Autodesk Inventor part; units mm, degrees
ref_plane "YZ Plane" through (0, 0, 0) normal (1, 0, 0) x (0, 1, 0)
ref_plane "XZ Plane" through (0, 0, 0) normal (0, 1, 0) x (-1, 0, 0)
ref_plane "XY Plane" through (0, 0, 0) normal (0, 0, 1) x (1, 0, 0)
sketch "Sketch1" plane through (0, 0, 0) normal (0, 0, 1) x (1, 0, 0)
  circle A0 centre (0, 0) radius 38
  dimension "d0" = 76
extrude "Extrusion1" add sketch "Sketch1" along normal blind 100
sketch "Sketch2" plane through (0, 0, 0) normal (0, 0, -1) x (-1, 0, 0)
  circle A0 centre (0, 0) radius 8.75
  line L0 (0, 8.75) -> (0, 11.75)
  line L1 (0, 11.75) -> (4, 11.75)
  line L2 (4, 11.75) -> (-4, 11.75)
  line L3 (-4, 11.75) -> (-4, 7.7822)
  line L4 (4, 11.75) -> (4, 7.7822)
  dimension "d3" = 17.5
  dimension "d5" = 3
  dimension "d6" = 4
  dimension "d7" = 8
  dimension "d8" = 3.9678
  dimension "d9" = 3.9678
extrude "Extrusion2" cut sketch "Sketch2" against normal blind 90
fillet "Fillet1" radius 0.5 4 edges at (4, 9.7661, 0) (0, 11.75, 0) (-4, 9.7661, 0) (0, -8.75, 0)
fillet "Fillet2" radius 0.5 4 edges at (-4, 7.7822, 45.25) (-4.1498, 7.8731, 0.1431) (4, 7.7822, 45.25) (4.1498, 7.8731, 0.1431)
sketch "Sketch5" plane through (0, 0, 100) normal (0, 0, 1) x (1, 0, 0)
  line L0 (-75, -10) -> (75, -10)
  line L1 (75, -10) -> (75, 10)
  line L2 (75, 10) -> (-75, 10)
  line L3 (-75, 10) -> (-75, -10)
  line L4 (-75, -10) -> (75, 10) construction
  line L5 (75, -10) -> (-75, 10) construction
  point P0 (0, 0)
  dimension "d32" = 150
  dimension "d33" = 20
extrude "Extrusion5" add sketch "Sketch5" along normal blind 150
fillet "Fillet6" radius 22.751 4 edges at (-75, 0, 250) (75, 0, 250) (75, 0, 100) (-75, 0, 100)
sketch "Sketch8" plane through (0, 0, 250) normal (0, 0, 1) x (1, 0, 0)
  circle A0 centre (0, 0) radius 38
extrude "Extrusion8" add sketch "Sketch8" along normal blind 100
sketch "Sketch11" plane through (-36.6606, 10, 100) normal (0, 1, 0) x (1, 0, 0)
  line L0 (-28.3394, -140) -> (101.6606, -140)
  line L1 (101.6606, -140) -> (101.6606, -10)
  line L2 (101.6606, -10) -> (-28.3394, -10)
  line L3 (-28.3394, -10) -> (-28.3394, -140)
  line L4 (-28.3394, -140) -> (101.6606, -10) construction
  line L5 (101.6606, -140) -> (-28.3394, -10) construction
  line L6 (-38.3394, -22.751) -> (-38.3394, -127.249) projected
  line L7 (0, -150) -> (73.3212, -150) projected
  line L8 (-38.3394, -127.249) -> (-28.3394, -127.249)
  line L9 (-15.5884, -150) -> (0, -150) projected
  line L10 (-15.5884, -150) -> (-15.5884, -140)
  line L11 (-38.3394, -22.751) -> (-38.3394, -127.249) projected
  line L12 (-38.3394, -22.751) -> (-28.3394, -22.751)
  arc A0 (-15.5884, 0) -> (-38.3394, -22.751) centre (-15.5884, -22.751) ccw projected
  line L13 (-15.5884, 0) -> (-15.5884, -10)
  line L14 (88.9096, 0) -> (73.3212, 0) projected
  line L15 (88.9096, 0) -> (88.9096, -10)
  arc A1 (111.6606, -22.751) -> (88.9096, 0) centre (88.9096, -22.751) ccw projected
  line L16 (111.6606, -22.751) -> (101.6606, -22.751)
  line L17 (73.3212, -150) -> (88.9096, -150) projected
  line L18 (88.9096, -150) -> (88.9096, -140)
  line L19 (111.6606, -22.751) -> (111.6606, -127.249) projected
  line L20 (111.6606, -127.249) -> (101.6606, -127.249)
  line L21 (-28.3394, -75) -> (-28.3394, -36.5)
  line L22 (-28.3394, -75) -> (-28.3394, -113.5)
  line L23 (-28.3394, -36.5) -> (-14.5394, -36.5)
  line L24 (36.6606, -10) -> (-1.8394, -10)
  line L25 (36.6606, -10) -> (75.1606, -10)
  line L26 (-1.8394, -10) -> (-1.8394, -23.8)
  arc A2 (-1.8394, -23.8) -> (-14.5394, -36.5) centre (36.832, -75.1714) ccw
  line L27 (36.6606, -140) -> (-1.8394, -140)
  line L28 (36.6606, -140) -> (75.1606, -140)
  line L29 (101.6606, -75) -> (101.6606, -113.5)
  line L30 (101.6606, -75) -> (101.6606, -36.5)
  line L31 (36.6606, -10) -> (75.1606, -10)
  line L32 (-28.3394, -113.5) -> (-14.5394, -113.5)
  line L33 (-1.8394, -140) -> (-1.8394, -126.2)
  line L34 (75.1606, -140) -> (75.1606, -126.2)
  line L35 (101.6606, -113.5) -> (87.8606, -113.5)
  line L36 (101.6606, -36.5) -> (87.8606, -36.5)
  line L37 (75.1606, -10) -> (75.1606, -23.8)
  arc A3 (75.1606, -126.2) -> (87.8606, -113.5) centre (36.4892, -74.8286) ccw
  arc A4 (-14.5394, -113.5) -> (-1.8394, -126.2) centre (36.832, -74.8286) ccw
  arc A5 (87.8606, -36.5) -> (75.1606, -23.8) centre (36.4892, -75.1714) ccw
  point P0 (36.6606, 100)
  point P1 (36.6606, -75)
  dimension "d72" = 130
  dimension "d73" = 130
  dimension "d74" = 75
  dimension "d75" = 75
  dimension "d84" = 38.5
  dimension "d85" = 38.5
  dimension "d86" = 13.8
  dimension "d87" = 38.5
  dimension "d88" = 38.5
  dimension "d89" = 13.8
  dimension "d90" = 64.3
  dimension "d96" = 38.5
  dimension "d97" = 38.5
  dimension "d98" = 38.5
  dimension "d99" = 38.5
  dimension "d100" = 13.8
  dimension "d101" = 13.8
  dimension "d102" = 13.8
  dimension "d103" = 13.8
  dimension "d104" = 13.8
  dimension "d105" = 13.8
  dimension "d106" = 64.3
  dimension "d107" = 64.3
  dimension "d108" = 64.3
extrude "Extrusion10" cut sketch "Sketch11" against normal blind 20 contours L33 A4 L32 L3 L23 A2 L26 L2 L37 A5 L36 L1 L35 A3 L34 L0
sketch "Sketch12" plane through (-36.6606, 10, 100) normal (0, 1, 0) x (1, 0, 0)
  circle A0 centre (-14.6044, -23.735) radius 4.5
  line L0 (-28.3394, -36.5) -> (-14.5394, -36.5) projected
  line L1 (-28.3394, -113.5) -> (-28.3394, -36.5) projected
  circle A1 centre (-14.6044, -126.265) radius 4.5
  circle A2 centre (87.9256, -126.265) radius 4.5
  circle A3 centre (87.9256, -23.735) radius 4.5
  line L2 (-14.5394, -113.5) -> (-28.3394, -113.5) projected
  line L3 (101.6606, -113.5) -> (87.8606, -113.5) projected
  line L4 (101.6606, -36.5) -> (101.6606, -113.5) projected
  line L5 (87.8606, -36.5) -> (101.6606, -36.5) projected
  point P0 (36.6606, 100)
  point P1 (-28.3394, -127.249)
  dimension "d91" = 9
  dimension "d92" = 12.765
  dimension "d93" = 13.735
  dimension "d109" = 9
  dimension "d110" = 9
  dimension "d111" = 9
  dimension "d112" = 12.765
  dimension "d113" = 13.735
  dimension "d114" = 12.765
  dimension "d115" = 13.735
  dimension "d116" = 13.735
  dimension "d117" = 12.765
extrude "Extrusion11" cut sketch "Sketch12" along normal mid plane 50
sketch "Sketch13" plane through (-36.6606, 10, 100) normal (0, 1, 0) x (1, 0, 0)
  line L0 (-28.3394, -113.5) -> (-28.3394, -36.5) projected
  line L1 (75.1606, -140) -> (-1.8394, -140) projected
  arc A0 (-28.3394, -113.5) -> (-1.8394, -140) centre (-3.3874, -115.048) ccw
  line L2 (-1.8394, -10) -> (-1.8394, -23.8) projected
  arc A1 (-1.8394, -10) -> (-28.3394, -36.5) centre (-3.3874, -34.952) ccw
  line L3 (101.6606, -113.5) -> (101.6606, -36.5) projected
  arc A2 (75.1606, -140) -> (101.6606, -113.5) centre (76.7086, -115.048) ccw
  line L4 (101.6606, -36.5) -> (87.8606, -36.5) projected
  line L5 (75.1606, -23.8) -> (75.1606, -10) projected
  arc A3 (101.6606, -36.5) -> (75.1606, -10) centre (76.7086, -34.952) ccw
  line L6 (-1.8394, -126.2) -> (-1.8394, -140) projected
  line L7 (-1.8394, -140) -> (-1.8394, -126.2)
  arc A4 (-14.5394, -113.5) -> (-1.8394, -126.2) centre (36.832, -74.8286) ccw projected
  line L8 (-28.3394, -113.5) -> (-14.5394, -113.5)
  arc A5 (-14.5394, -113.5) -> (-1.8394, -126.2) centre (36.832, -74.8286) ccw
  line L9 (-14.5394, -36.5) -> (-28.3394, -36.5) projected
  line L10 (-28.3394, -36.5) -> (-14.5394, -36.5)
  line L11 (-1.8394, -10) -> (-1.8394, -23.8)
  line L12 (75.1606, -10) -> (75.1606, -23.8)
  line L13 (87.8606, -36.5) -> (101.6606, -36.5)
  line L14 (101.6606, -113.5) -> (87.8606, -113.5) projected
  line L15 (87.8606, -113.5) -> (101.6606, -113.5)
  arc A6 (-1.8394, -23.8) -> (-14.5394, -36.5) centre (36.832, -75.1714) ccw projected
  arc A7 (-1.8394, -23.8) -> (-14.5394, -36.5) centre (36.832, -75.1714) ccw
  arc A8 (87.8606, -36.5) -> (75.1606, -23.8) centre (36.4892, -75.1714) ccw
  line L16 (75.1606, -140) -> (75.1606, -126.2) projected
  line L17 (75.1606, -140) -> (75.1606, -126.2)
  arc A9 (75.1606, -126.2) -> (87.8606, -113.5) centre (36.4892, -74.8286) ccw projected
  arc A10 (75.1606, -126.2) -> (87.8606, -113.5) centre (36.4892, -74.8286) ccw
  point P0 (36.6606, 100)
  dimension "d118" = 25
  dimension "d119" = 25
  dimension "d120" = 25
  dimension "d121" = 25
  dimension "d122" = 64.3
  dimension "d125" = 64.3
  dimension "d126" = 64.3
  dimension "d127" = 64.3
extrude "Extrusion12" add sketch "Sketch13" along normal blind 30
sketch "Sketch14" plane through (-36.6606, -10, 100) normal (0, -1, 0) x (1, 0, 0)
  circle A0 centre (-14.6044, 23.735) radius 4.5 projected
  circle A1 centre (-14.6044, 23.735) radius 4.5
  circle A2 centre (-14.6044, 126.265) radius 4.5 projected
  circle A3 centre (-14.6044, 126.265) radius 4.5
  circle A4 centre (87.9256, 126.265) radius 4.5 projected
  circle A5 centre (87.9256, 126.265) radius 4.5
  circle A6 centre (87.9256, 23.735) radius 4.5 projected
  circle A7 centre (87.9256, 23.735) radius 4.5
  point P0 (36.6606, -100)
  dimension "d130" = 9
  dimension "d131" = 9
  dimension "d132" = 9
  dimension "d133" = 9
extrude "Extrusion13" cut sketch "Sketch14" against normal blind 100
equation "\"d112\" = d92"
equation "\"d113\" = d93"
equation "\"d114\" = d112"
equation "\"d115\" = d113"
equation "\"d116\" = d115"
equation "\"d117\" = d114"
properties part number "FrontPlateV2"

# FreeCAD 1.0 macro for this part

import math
import FreeCAD as App
import Part
import Sketcher

V = App.Vector


def edges_at(feature, points):
    """Names of the edges that pass closest to the given points."""
    edges = feature.Shape.Edges
    near = lambda p: min(range(len(edges)), key=lambda i: edges[i].distToShape(Part.Vertex(*p))[0])
    return sorted({f"Edge{near(p) + 1}" for p in points})

doc = App.newDocument("Part")
body = doc.addObject("PartDesign::Body", "Body")

# Sketch on XY plane
sketch1 = body.newObject("Sketcher::SketchObject", "Sketch")
sketch1.AttachmentSupport = (doc.getObject("XY_Plane"), [""])
sketch1.MapMode = "FlatFace"
sketch1.addGeometry(Part.Circle(V(0, 0, 0), V(0, 0, 1), 38), False)
sketch1.addConstraint([
    Sketcher.Constraint("Coincident", 0, 3, -1, 1),
    Sketcher.Constraint("Diameter", 0, 76.0),
])
pad1 = body.newObject("PartDesign::Pad", "Pad")
pad1.Profile = sketch1
pad1.Length = 100

# Sketch on XY plane
sketch2 = body.newObject("Sketcher::SketchObject", "Sketch001")
sketch2.AttachmentSupport = (doc.getObject("XY_Plane"), [""])
sketch2.MapMode = "FlatFace"
sketch2.addGeometry([
    Part.ArcOfCircle(Part.Circle(V(0, 0, 0), V(0, 0, 1), 8.8), math.radians(117), math.radians(423)),
    Part.LineSegment(V(-4, 7.8, 0), V(-4, 11.8, 0)),
    Part.LineSegment(V(-4, 11.8, 0), V(4, 11.8, 0)),
    Part.LineSegment(V(4, 11.8, 0), V(4, 7.8, 0)),
], False)
sketch2.addConstraint([
    Sketcher.Constraint("Coincident", 0, 1, 1, 1),
    Sketcher.Constraint("Coincident", 1, 2, 2, 1),
    Sketcher.Constraint("Coincident", 2, 2, 3, 1),
    Sketcher.Constraint("Coincident", 3, 2, 0, 2),
    Sketcher.Constraint("Vertical", 1),
    Sketcher.Constraint("Horizontal", 2),
    Sketcher.Constraint("Vertical", 3),
    Sketcher.Constraint("Coincident", 0, 3, -1, 1),
    Sketcher.Constraint("Horizontal", 0, 1, 3, 2),
    Sketcher.Constraint("DistanceX", 2, 1, 2, 2, 8.0),
    Sketcher.Constraint("Radius", 0, 8.75),
    Sketcher.Constraint("DistanceY", 1, 1, 1, 2, 3.9678),
])
pocket1 = body.newObject("PartDesign::Pocket", "Pocket")
pocket1.Profile = sketch2
pocket1.Length = 90
pocket1.Reversed = True
doc.recompute()

fillet = body.newObject("PartDesign::Fillet", "Fillet")
fillet.Base = (pocket1, edges_at(pocket1, [
    (4, 9.766, 0),
    (0, 11.75, 0),
    (-4, 9.766, 0),
    (0, -8.75, 0),
]))
fillet.Radius = 0.5
doc.recompute()

fillet2 = body.newObject("PartDesign::Fillet", "Fillet001")
fillet2.Base = (fillet, edges_at(fillet, [
    (-4, 7.782, 45.25),
    (-4.15, 7.873, 0.143),
    (4, 7.782, 45.25),
    (4.15, 7.873, 0.143),
]))
fillet2.Radius = 0.5

# Sketch on XY plane
sketch3 = body.newObject("Sketcher::SketchObject", "Sketch002")
sketch3.AttachmentSupport = (doc.getObject("XY_Plane"), [""])
sketch3.MapMode = "FlatFace"
sketch3.AttachmentOffset = App.Placement(V(0, 0, 100), App.Rotation())
sketch3.addGeometry([
    Part.LineSegment(V(-75, 10, 0), V(-75, -10, 0)),
    Part.LineSegment(V(-75, -10, 0), V(75, -10, 0)),
    Part.LineSegment(V(75, -10, 0), V(75, 10, 0)),
    Part.LineSegment(V(75, 10, 0), V(-75, 10, 0)),
], False)
sketch3.addConstraint([
    Sketcher.Constraint("Coincident", 0, 2, 1, 1),
    Sketcher.Constraint("Coincident", 1, 2, 2, 1),
    Sketcher.Constraint("Coincident", 2, 2, 3, 1),
    Sketcher.Constraint("Coincident", 3, 2, 0, 1),
    Sketcher.Constraint("Vertical", 0),
    Sketcher.Constraint("Horizontal", 1),
    Sketcher.Constraint("Vertical", 2),
    Sketcher.Constraint("Horizontal", 3),
    Sketcher.Constraint("Symmetric", 0, 2, 2, 2, -1, 1),
    Sketcher.Constraint("DistanceX", 1, 1, 1, 2, 150.0),
    Sketcher.Constraint("DistanceY", 0, 2, 0, 1, 20.0),
])
pad2 = body.newObject("PartDesign::Pad", "Pad001")
pad2.Profile = sketch3
pad2.Length = 150
doc.recompute()

fillet3 = body.newObject("PartDesign::Fillet", "Fillet002")
fillet3.Base = (pad2, edges_at(pad2, [
    (-75, 0, 250),
    (75, 0, 250),
    (75, 0, 100),
    (-75, 0, 100),
]))
fillet3.Radius = 22.751

# Sketch on XY plane
sketch4 = body.newObject("Sketcher::SketchObject", "Sketch003")
sketch4.AttachmentSupport = (doc.getObject("XY_Plane"), [""])
sketch4.MapMode = "FlatFace"
sketch4.AttachmentOffset = App.Placement(V(0, 0, 250), App.Rotation())
sketch4.addGeometry(Part.Circle(V(0, 0, 0), V(0, 0, 1), 38), False)
sketch4.addConstraint([
    Sketcher.Constraint("Coincident", 0, 3, -1, 1),
    Sketcher.Constraint("Diameter", 0, 76.0),
])
pad3 = body.newObject("PartDesign::Pad", "Pad002")
pad3.Profile = sketch4
pad3.Length = 100

# Sketch on XZ plane
sketch5 = body.newObject("Sketcher::SketchObject", "Sketch004")
sketch5.AttachmentSupport = (doc.getObject("XZ_Plane"), [""])
sketch5.MapMode = "FlatFace"
sketch5.AttachmentOffset = App.Placement(V(0, 0, -10), App.Rotation())
sketch5.addGeometry([
    Part.LineSegment(V(-38.5, 226.2, 0), V(-38.5, 240, 0)),  # 0
    Part.LineSegment(V(-38.5, 240, 0), V(38.5, 240, 0)),  # 1
    Part.LineSegment(V(38.5, 240, 0), V(38.5, 226.2, 0)),  # 2
    Part.ArcOfCircle(Part.Circle(V(-0.1714, 174.8286, 0), V(0, 0, 1), 64.300062), math.radians(36.971729), math.radians(53.028271)),  # 3
    Part.LineSegment(V(51.2, 213.5, 0), V(65, 213.5, 0)),  # 4
    Part.LineSegment(V(65, 213.5, 0), V(65, 136.5, 0)),  # 5
    Part.LineSegment(V(65, 136.5, 0), V(51.2, 136.5, 0)),  # 6
    Part.ArcOfCircle(Part.Circle(V(-0.1714, 175.1714, 0), V(0, 0, 1), 64.300062), math.radians(-53.028271), math.radians(-36.971729)),  # 7
    Part.LineSegment(V(38.5, 123.8, 0), V(38.5, 110, 0)),  # 8
    Part.LineSegment(V(38.5, 110, 0), V(-38.5, 110, 0)),  # 9
    Part.LineSegment(V(-38.5, 110, 0), V(-38.5, 123.8, 0)),  # 10
    Part.ArcOfCircle(Part.Circle(V(0.1714, 175.1714, 0), V(0, 0, 1), 64.300062), math.radians(-143.028271), math.radians(-126.971729)),  # 11
    Part.LineSegment(V(-51.2, 136.5, 0), V(-65, 136.5, 0)),  # 12
    Part.LineSegment(V(-65, 136.5, 0), V(-65, 213.5, 0)),  # 13
    Part.LineSegment(V(-65, 213.5, 0), V(-51.2, 213.5, 0)),  # 14
    Part.ArcOfCircle(Part.Circle(V(0.1714, 174.8286, 0), V(0, 0, 1), 64.300062), math.radians(126.971729), math.radians(143.028271)),  # 15
], False)
sketch5.addConstraint([
    Sketcher.Constraint("Coincident", 0, 2, 1, 1),
    Sketcher.Constraint("Coincident", 1, 2, 2, 1),
    Sketcher.Constraint("Coincident", 2, 2, 3, 2),
    Sketcher.Constraint("Coincident", 3, 1, 4, 1),
    Sketcher.Constraint("Coincident", 4, 2, 5, 1),
    Sketcher.Constraint("Coincident", 5, 2, 6, 1),
    Sketcher.Constraint("Coincident", 6, 2, 7, 2),
    Sketcher.Constraint("Coincident", 7, 1, 8, 1),
    Sketcher.Constraint("Coincident", 8, 2, 9, 1),
    Sketcher.Constraint("Coincident", 9, 2, 10, 1),
    Sketcher.Constraint("Coincident", 10, 2, 11, 2),
    Sketcher.Constraint("Coincident", 11, 1, 12, 1),
    Sketcher.Constraint("Coincident", 12, 2, 13, 1),
    Sketcher.Constraint("Coincident", 13, 2, 14, 1),
    Sketcher.Constraint("Coincident", 14, 2, 15, 2),
    Sketcher.Constraint("Coincident", 15, 1, 0, 1),
    Sketcher.Constraint("Vertical", 0),
    Sketcher.Constraint("Horizontal", 1),
    Sketcher.Constraint("Vertical", 2),
    Sketcher.Constraint("Horizontal", 4),
    Sketcher.Constraint("Vertical", 5),
    Sketcher.Constraint("Horizontal", 6),
    Sketcher.Constraint("Vertical", 8),
    Sketcher.Constraint("Horizontal", 9),
    Sketcher.Constraint("Vertical", 10),
    Sketcher.Constraint("Horizontal", 12),
    Sketcher.Constraint("Vertical", 13),
    Sketcher.Constraint("Horizontal", 14),
    Sketcher.Constraint("Equal", 3, 7),
    Sketcher.Constraint("Equal", 7, 11),
    Sketcher.Constraint("Equal", 11, 15),
    Sketcher.Constraint("Symmetric", 7, 3, 11, 3, -2),
    Sketcher.Constraint("Symmetric", 3, 3, 15, 3, -2),
    Sketcher.Constraint("Symmetric", 5, 2, 12, 2, -2),
    Sketcher.Constraint("Horizontal", 7, 1, 10, 2),
    Sketcher.Constraint("Horizontal", 4, 2, 13, 2),
    Sketcher.Constraint("Horizontal", 2, 2, 15, 1),
    Sketcher.Constraint("Vertical", 3, 3, 7, 3),
    Sketcher.Constraint("Vertical", 3, 1, 6, 2),
    Sketcher.Constraint("Vertical", 2, 2, 7, 1),
    Sketcher.Constraint("Equal", 14, 0),
    Sketcher.Constraint("Equal", 9, 5),
    Sketcher.Constraint("Equal", 2, 8),
    Sketcher.Constraint("Radius", 3, 64.3),
    Sketcher.Constraint("DistanceX", 4, 1, 4, 2, 13.8),
    Sketcher.Constraint("DistanceX", 0, 2, -1, 1, 38.5),
    Sketcher.Constraint("DistanceY", -1, 1, 0, 2, 240.0),
    Sketcher.Constraint("DistanceX", -1, 1, 4, 2, 65.0),
    Sketcher.Constraint("DistanceY", -1, 1, 8, 2, 110.0),
])
pocket2 = body.newObject("PartDesign::Pocket", "Pocket001")
pocket2.Profile = sketch5
pocket2.Length = 20
pocket2.Reversed = True

# Sketch on XZ plane
sketch6 = body.newObject("Sketcher::SketchObject", "Sketch005")
sketch6.AttachmentSupport = (doc.getObject("XZ_Plane"), [""])
sketch6.MapMode = "FlatFace"
sketch6.AttachmentOffset = App.Placement(V(0, 0, -10), App.Rotation())
sketch6.addGeometry([
    Part.Circle(V(-51.3, 123.7, 0), V(0, 0, 1), 4.5),
    Part.Circle(V(-51.3, 226.3, 0), V(0, 0, 1), 4.5),
    Part.Circle(V(51.3, 226.3, 0), V(0, 0, 1), 4.5),
    Part.Circle(V(51.3, 123.7, 0), V(0, 0, 1), 4.5),
], False)
sketch6.addConstraint([
    Sketcher.Constraint("Equal", 0, 1),
    Sketcher.Constraint("Equal", 1, 2),
    Sketcher.Constraint("Equal", 2, 3),
    Sketcher.Constraint("Symmetric", 1, 3, 2, 3, -2),
    Sketcher.Constraint("Symmetric", 0, 3, 3, 3, -2),
    Sketcher.Constraint("Vertical", 0, 3, 1, 3),
    Sketcher.Constraint("Diameter", 0, 9.0),
    Sketcher.Constraint("DistanceY", 0, 3, 1, 3, 102.53),
    Sketcher.Constraint("DistanceX", 1, 3, 2, 3, 102.53),
    Sketcher.Constraint("DistanceY", -1, 1, 0, 3, 123.735),
])
pocket3 = body.newObject("PartDesign::Pocket", "Pocket002")
pocket3.Profile = sketch6
pocket3.Length = 50
pocket3.Midplane = True

# Sketch on XZ plane
sketch7 = body.newObject("Sketcher::SketchObject", "Sketch006")
sketch7.AttachmentSupport = (doc.getObject("XZ_Plane"), [""])
sketch7.MapMode = "FlatFace"
sketch7.AttachmentOffset = App.Placement(V(0, 0, -10), App.Rotation())
sketch7.addGeometry([
    Part.ArcOfCircle(Part.Circle(V(-40.048, 134.952, 0), V(0, 0, 1), 24.999972), math.radians(176.44997), math.radians(273.55003)),  # 0
    Part.LineSegment(V(-65, 136.5, 0), V(-51.2, 136.5, 0)),  # 1
    Part.ArcOfCircle(Part.Circle(V(0.1714, 175.1714, 0), V(0, 0, 1), 64.300062), math.radians(-143.028271), math.radians(-126.971729)),  # 2
    Part.LineSegment(V(-38.5, 123.8, 0), V(-38.5, 110, 0)),  # 3
    Part.LineSegment(V(-51.2, 213.5, 0), V(-65, 213.5, 0)),  # 4
    Part.ArcOfCircle(Part.Circle(V(-40.048, 215.048, 0), V(0, 0, 1), 24.999972), math.radians(86.44997), math.radians(183.55003)),  # 5
    Part.LineSegment(V(-38.5, 240, 0), V(-38.5, 226.2, 0)),  # 6
    Part.ArcOfCircle(Part.Circle(V(0.1714, 174.8286, 0), V(0, 0, 1), 64.300062), math.radians(126.971729), math.radians(143.028271)),  # 7
    Part.LineSegment(V(51.2, 136.5, 0), V(65, 136.5, 0)),  # 8
    Part.ArcOfCircle(Part.Circle(V(40.048, 134.952, 0), V(0, 0, 1), 24.999972), math.radians(-93.55003), math.radians(3.55003)),  # 9
    Part.LineSegment(V(38.5, 110, 0), V(38.5, 123.8, 0)),  # 10
    Part.ArcOfCircle(Part.Circle(V(-0.1714, 175.1714, 0), V(0, 0, 1), 64.300062), math.radians(-53.028271), math.radians(-36.971729)),  # 11
    Part.LineSegment(V(38.5, 226.2, 0), V(38.5, 240, 0)),  # 12
    Part.ArcOfCircle(Part.Circle(V(40.048, 215.048, 0), V(0, 0, 1), 24.999972), math.radians(-3.55003), math.radians(93.55003)),  # 13
    Part.LineSegment(V(65, 213.5, 0), V(51.2, 213.5, 0)),  # 14
    Part.ArcOfCircle(Part.Circle(V(-0.1714, 174.8286, 0), V(0, 0, 1), 64.300062), math.radians(36.971729), math.radians(53.028271)),  # 15
], False)
sketch7.addConstraint([
    Sketcher.Constraint("Coincident", 0, 1, 1, 1),
    Sketcher.Constraint("Coincident", 1, 2, 2, 1),
    Sketcher.Constraint("Coincident", 2, 2, 3, 1),
    Sketcher.Constraint("Coincident", 3, 2, 0, 2),
    Sketcher.Constraint("Coincident", 4, 2, 5, 2),
    Sketcher.Constraint("Coincident", 5, 1, 6, 1),
    Sketcher.Constraint("Coincident", 6, 2, 7, 1),
    Sketcher.Constraint("Coincident", 7, 2, 4, 1),
    Sketcher.Constraint("Coincident", 8, 2, 9, 2),
    Sketcher.Constraint("Coincident", 9, 1, 10, 1),
    Sketcher.Constraint("Coincident", 10, 2, 11, 1),
    Sketcher.Constraint("Coincident", 11, 2, 8, 1),
    Sketcher.Constraint("Coincident", 12, 2, 13, 2),
    Sketcher.Constraint("Coincident", 13, 1, 14, 1),
    Sketcher.Constraint("Coincident", 14, 2, 15, 1),
    Sketcher.Constraint("Coincident", 15, 2, 12, 1),
    Sketcher.Constraint("Horizontal", 1),
    Sketcher.Constraint("Vertical", 3),
    Sketcher.Constraint("Horizontal", 4),
    Sketcher.Constraint("Vertical", 6),
    Sketcher.Constraint("Horizontal", 8),
    Sketcher.Constraint("Vertical", 10),
    Sketcher.Constraint("Vertical", 12),
    Sketcher.Constraint("Horizontal", 14),
    Sketcher.Constraint("Equal", 0, 5),
    Sketcher.Constraint("Equal", 2, 7),
    Sketcher.Constraint("Equal", 5, 9),
    Sketcher.Constraint("Equal", 7, 11),
    Sketcher.Constraint("Equal", 9, 13),
    Sketcher.Constraint("Equal", 11, 15),
    Sketcher.Constraint("Symmetric", 0, 3, 9, 3, -2),
    Sketcher.Constraint("Symmetric", 2, 3, 11, 3, -2),
    Sketcher.Constraint("Symmetric", 5, 3, 13, 3, -2),
    Sketcher.Constraint("Symmetric", 7, 3, 15, 3, -2),
    Sketcher.Constraint("Horizontal", 1, 2, 8, 2),
    Sketcher.Constraint("Horizontal", 3, 2, 9, 1),
    Sketcher.Constraint("Horizontal", 5, 1, 12, 2),
    Sketcher.Constraint("Horizontal", 7, 2, 13, 1),
    Sketcher.Constraint("Vertical", 0, 3, 5, 3),
    Sketcher.Constraint("Vertical", 2, 3, 7, 3),
    Sketcher.Constraint("Vertical", 0, 1, 4, 2),
    Sketcher.Constraint("Vertical", 3, 2, 5, 1),
    Sketcher.Constraint("Vertical", 1, 2, 7, 2),
    Sketcher.Constraint("Equal", 14, 3),
    Sketcher.Constraint("Radius", 0, 25.0),
    Sketcher.Constraint("Radius", 2, 64.3),
    Sketcher.Constraint("DistanceX", 1, 1, 1, 2, 13.8),
    Sketcher.Constraint("DistanceX", 0, 1, -1, 1, 65.0),
    Sketcher.Constraint("DistanceY", -1, 1, 3, 2, 110.0),
    Sketcher.Constraint("DistanceY", -1, 1, 5, 1, 240.0),
    Sketcher.Constraint("DistanceY", -1, 1, 0, 1, 136.5),
    Sketcher.Constraint("DistanceX", 2, 2, -1, 1, 38.5),
])
pad4 = body.newObject("PartDesign::Pad", "Pad003")
pad4.Profile = sketch7
pad4.Length = 30
pad4.Reversed = True

# Sketch on XZ plane
sketch8 = body.newObject("Sketcher::SketchObject", "Sketch007")
sketch8.AttachmentSupport = (doc.getObject("XZ_Plane"), [""])
sketch8.MapMode = "FlatFace"
sketch8.AttachmentOffset = App.Placement(V(0, 0, 10), App.Rotation())
sketch8.addGeometry([
    Part.Circle(V(-51.3, 123.7, 0), V(0, 0, 1), 4.5),
    Part.Circle(V(-51.3, 226.3, 0), V(0, 0, 1), 4.5),
    Part.Circle(V(51.3, 226.3, 0), V(0, 0, 1), 4.5),
    Part.Circle(V(51.3, 123.7, 0), V(0, 0, 1), 4.5),
], False)
sketch8.addConstraint([
    Sketcher.Constraint("Equal", 0, 1),
    Sketcher.Constraint("Equal", 1, 2),
    Sketcher.Constraint("Equal", 2, 3),
    Sketcher.Constraint("Symmetric", 1, 3, 2, 3, -2),
    Sketcher.Constraint("Symmetric", 0, 3, 3, 3, -2),
    Sketcher.Constraint("Vertical", 0, 3, 1, 3),
    Sketcher.Constraint("Diameter", 0, 9.0),
    Sketcher.Constraint("DistanceY", 0, 3, 1, 3, 102.53),
    Sketcher.Constraint("DistanceX", 1, 3, 2, 3, 102.53),
    Sketcher.Constraint("DistanceY", -1, 1, 0, 3, 123.735),
])
pocket4 = body.newObject("PartDesign::Pocket", "Pocket003")
pocket4.Profile = sketch8
pocket4.Length = 100

doc.recompute()
